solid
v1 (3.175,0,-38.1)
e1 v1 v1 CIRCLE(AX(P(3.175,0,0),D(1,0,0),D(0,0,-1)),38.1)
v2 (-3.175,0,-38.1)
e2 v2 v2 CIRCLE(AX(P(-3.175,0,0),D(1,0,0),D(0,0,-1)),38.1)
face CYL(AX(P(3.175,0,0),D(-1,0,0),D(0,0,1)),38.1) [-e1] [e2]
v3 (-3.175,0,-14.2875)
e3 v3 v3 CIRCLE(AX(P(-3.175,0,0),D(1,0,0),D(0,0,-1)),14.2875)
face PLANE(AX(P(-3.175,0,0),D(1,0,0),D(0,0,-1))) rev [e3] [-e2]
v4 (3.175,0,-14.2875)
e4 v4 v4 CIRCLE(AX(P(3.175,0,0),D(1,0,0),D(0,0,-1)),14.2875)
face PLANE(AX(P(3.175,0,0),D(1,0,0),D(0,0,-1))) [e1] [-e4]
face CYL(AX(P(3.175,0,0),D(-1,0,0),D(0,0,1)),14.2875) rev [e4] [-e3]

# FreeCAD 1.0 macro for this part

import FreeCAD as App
import Part
import Sketcher
Q = App.Units.Quantity

doc = App.newDocument("Part")
body = doc.addObject("PartDesign::Body", "Body")

sketch1 = body.newObject("Sketcher::SketchObject", "Sketch")
sketch1.AttachmentSupport = (doc.getObject("YZ_Plane"), [""])
sketch1.MapMode = "FlatFace"
sketch1.addGeometry([
    Part.Circle(App.Vector(0, 0, 0), App.Vector(0, 0, 1), 38.1),
    Part.Circle(App.Vector(0, 0, 0), App.Vector(0, 0, 1), 14.2875),
], False)
sketch1.addConstraint([
    Sketcher.Constraint("Coincident", 0, 3, -1, 1),
    Sketcher.Constraint("Coincident", 1, 3, -1, 1),
    Sketcher.Constraint("Diameter", 0, Q("3 in")),
    Sketcher.Constraint("Diameter", 1, Q("1.125 in")),
])
pad1 = body.newObject("PartDesign::Pad", "Pad")
pad1.Profile = sketch1
pad1.Length = Q("0.25 in")
pad1.Midplane = True

doc.recompute()
